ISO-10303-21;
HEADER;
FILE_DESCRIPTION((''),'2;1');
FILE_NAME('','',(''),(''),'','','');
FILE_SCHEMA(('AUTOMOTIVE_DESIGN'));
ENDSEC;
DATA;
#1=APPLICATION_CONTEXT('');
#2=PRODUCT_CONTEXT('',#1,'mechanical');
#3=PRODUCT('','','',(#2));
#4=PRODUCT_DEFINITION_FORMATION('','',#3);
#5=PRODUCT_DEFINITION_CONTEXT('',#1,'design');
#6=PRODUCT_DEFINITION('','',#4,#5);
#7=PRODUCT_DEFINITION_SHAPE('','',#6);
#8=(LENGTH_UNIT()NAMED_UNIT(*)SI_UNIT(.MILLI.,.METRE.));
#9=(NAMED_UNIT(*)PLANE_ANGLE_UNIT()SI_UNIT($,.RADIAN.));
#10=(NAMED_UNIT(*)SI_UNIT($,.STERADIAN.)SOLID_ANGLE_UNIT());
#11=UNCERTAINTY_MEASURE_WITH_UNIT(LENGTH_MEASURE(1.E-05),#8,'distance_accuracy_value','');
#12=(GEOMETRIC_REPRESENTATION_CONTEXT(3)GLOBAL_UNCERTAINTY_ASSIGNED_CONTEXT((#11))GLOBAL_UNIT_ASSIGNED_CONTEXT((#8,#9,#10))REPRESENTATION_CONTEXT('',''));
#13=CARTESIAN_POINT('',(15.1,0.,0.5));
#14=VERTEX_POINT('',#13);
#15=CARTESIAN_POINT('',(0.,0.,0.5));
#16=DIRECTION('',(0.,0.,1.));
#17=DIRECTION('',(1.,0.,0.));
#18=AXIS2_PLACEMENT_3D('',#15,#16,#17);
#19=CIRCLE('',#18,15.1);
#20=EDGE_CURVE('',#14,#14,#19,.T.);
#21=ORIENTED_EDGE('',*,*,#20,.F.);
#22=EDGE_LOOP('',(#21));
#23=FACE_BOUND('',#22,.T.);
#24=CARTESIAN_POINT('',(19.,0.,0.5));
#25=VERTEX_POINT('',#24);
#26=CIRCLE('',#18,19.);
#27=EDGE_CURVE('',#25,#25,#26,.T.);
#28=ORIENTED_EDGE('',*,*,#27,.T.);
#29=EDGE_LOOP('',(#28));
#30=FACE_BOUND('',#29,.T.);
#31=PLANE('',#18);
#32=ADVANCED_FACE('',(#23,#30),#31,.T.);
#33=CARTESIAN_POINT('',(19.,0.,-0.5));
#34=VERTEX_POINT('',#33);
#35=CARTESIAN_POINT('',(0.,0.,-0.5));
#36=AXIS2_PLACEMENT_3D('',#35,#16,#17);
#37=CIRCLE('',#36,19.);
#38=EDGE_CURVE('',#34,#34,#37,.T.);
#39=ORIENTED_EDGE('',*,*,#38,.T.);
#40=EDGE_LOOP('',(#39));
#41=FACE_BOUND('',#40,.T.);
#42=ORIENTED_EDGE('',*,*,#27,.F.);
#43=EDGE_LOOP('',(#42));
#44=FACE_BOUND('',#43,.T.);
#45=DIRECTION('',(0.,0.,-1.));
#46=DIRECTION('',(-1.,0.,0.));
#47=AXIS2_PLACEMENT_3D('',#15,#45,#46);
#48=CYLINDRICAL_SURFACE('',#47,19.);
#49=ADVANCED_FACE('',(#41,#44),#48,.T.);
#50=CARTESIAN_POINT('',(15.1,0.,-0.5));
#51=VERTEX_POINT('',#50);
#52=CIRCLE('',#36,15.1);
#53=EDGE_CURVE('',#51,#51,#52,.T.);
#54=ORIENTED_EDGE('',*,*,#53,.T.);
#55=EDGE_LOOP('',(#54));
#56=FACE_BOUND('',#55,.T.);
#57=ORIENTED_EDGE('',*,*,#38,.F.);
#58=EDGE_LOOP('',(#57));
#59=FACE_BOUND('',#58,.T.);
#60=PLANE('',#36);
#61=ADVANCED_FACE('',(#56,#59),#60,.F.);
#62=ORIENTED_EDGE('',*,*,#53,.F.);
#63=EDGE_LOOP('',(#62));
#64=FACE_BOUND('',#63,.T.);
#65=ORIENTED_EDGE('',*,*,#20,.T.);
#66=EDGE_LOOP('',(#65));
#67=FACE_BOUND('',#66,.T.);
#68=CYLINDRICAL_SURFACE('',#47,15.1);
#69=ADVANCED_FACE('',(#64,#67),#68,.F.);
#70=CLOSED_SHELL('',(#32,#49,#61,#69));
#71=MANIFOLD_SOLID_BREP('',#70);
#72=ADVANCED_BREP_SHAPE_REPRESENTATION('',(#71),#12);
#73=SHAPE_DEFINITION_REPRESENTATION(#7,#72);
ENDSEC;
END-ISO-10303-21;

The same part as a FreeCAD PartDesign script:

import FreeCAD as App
import Part
import Sketcher

doc = App.newDocument("Part")
params = doc.addObject("Spreadsheet::Sheet", "Params")
for row, (alias, value) in enumerate([
    ("sketch1_diameter", "38 mm"),
    ("sketch1_diameter2", "30.2 mm"),
    ("pad1_length", "1 mm"),
], start=1):
    params.set(f"A{row}", alias)
    params.set(f"B{row}", "=" + value)
    params.setAlias(f"B{row}", alias)

body = doc.addObject("PartDesign::Body", "Body")

sketch1 = body.newObject("Sketcher::SketchObject", "Sketch")
sketch1.AttachmentSupport = (doc.getObject("XY_Plane"), [""])
sketch1.MapMode = "FlatFace"
sketch1.addGeometry([
    Part.Circle(App.Vector(0, 0, 0), App.Vector(0, 0, 1), 19),
    Part.Circle(App.Vector(0, 0, 0), App.Vector(0, 0, 1), 15),
], False)
sketch1.addConstraint([
    Sketcher.Constraint("Coincident", 0, 3, -1, 1),
    Sketcher.Constraint("Coincident", 1, 3, -1, 1),
    Sketcher.Constraint("Diameter", 0, 38.0),
    Sketcher.Constraint("Diameter", 1, 30.2),
])
sketch1.setExpression("Constraints[2]", "Params.sketch1_diameter")
sketch1.setExpression("Constraints[3]", "Params.sketch1_diameter2")
pad1 = body.newObject("PartDesign::Pad", "Pad")
pad1.Profile = sketch1
pad1.setExpression("Length", "Params.pad1_length")
pad1.Midplane = True

doc.recompute()
